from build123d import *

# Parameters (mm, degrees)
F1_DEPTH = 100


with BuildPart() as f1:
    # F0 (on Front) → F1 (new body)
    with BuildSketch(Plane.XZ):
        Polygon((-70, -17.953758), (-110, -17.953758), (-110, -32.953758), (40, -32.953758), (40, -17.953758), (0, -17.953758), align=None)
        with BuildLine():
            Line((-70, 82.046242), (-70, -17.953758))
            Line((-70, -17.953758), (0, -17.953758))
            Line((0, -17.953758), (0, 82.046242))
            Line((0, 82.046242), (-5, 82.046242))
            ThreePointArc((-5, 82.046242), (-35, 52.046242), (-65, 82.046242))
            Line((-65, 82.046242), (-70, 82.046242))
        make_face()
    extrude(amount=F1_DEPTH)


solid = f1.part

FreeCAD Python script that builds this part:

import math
import FreeCAD as App
import Part
import Sketcher

V = App.Vector
Q = App.Units.Quantity

doc = App.newDocument("Part")
body = doc.addObject("PartDesign::Body", "Body")

sketch1 = body.newObject("Sketcher::SketchObject", "Sketch")
sketch1.AttachmentSupport = (doc.getObject("XZ_Plane"), [""])
sketch1.MapMode = "FlatFace"
sketch1.addGeometry([
    Part.LineSegment(V(-110, -18, 0), V(-110, -33, 0)),
    Part.LineSegment(V(-110, -33, 0), V(40, -33, 0)),
    Part.LineSegment(V(40, -33, 0), V(40, -18, 0)),
    Part.LineSegment(V(40, -18, 0), V(0, -18, 0)),
    Part.LineSegment(V(0, -18, 0), V(0, 82, 0)),
    Part.LineSegment(V(0, 82, 0), V(-5, 82, 0)),
    Part.ArcOfCircle(Part.Circle(V(-35, 82, 0), V(0, 0, 1), 30), math.radians(180), math.radians(360)),
    Part.LineSegment(V(-65, 82, 0), V(-70, 82, 0)),
    Part.LineSegment(V(-70, 82, 0), V(-70, -18, 0)),
    Part.LineSegment(V(-70, -18, 0), V(-110, -18, 0)),
], False)
sketch1.addConstraint([
    Sketcher.Constraint("Coincident", 0, 2, 1, 1),
    Sketcher.Constraint("Coincident", 1, 2, 2, 1),
    Sketcher.Constraint("Coincident", 2, 2, 3, 1),
    Sketcher.Constraint("Coincident", 3, 2, 4, 1),
    Sketcher.Constraint("Coincident", 4, 2, 5, 1),
    Sketcher.Constraint("Coincident", 5, 2, 6, 2),
    Sketcher.Constraint("Coincident", 6, 1, 7, 1),
    Sketcher.Constraint("Coincident", 7, 2, 8, 1),
    Sketcher.Constraint("Coincident", 8, 2, 9, 1),
    Sketcher.Constraint("Coincident", 9, 2, 0, 1),
    Sketcher.Constraint("Vertical", 0),
    Sketcher.Constraint("Horizontal", 1),
    Sketcher.Constraint("Vertical", 2),
    Sketcher.Constraint("Horizontal", 3),
    Sketcher.Constraint("Vertical", 4),
    Sketcher.Constraint("Horizontal", 5),
    Sketcher.Constraint("Horizontal", 7),
    Sketcher.Constraint("Vertical", 8),
    Sketcher.Constraint("Horizontal", 9),
    Sketcher.Constraint("PointOnObject", 3, 2, -2),
    Sketcher.Constraint("Horizontal", 6, 3, 4, 2),
    Sketcher.Constraint("Horizontal", 5, 2, 6, 1),
    Sketcher.Constraint("Horizontal", 3, 2, 8, 2),
    Sketcher.Constraint("Equal", 5, 7),
    Sketcher.Constraint("Equal", 3, 9),
    Sketcher.Constraint("Radius", 6, Q("30 mm")),
    Sketcher.Constraint("DistanceX", 1, 1, 1, 2, Q("150 mm")),
    Sketcher.Constraint("DistanceX", 3, 2, 3, 1, Q("40 mm")),
    Sketcher.Constraint("DistanceY", 0, 2, 0, 1, Q("15 mm")),
    Sketcher.Constraint("DistanceY", 4, 1, 4, 2, Q("100 mm")),
    Sketcher.Constraint("DistanceY", 2, 2, -1, 1, Q("17.953758 mm")),
])
pad1 = body.newObject("PartDesign::Pad", "Pad")
pad1.Profile = sketch1
pad1.Length = 100

doc.recompute()
